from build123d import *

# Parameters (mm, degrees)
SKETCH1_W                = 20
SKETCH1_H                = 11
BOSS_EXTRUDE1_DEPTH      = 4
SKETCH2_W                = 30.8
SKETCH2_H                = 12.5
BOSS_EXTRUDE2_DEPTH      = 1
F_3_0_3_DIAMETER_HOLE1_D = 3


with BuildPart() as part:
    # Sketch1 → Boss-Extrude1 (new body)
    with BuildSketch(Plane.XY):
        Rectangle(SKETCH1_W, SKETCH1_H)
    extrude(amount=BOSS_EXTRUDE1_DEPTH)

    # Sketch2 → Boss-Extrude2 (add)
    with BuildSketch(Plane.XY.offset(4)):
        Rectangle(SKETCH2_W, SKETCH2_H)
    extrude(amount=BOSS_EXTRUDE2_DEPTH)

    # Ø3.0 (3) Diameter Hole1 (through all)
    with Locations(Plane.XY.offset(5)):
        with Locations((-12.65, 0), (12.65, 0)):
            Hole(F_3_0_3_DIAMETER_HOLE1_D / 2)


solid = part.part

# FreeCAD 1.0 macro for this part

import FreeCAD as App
import Part
import Sketcher
from FreeCAD import Vector
Q = App.Units.Quantity

doc = App.newDocument("Part")
body = doc.addObject("PartDesign::Body", "Body")

sketch1 = body.newObject("Sketcher::SketchObject", "Sketch")
sketch1.AttachmentSupport = (doc.getObject("XY_Plane"), [""])
sketch1.MapMode = "FlatFace"
sketch1.addGeometry([
    Part.LineSegment(Vector(-10, 6, 0), Vector(-10, -6, 0)),
    Part.LineSegment(Vector(-10, -6, 0), Vector(10, -6, 0)),
    Part.LineSegment(Vector(10, -6, 0), Vector(10, 6, 0)),
    Part.LineSegment(Vector(10, 6, 0), Vector(-10, 6, 0)),
], False)
sketch1.addConstraint([
    Sketcher.Constraint("Coincident", 0, 2, 1, 1),
    Sketcher.Constraint("Coincident", 1, 2, 2, 1),
    Sketcher.Constraint("Coincident", 2, 2, 3, 1),
    Sketcher.Constraint("Coincident", 3, 2, 0, 1),
    Sketcher.Constraint("Vertical", 0),
    Sketcher.Constraint("Horizontal", 1),
    Sketcher.Constraint("Vertical", 2),
    Sketcher.Constraint("Horizontal", 3),
    Sketcher.Constraint("Symmetric", 0, 2, 2, 2, -1, 1),
    Sketcher.Constraint("DistanceX", 1, 1, 1, 2, Q("20 mm")),
    Sketcher.Constraint("DistanceY", 0, 2, 0, 1, Q("11 mm")),
])
pad1 = body.newObject("PartDesign::Pad", "Pad")
pad1.Profile = sketch1
pad1.Length = 4

sketch2 = body.newObject("Sketcher::SketchObject", "Sketch001")
sketch2.AttachmentSupport = (doc.getObject("XY_Plane"), [""])
sketch2.MapMode = "FlatFace"
sketch2.AttachmentOffset = App.Placement(Vector(0, 0, 4), App.Rotation())
sketch2.addGeometry([
    Part.LineSegment(Vector(-15, 6, 0), Vector(-15, -6, 0)),
    Part.LineSegment(Vector(-15, -6, 0), Vector(15, -6, 0)),
    Part.LineSegment(Vector(15, -6, 0), Vector(15, 6, 0)),
    Part.LineSegment(Vector(15, 6, 0), Vector(-15, 6, 0)),
], False)
sketch2.addConstraint([
    Sketcher.Constraint("Coincident", 0, 2, 1, 1),
    Sketcher.Constraint("Coincident", 1, 2, 2, 1),
    Sketcher.Constraint("Coincident", 2, 2, 3, 1),
    Sketcher.Constraint("Coincident", 3, 2, 0, 1),
    Sketcher.Constraint("Vertical", 0),
    Sketcher.Constraint("Horizontal", 1),
    Sketcher.Constraint("Vertical", 2),
    Sketcher.Constraint("Horizontal", 3),
    Sketcher.Constraint("Symmetric", 0, 2, 2, 2, -1, 1),
    Sketcher.Constraint("DistanceX", 1, 1, 1, 2, Q("30.8 mm")),
    Sketcher.Constraint("DistanceY", 0, 2, 0, 1, Q("12.5 mm")),
])
pad2 = body.newObject("PartDesign::Pad", "Pad001")
pad2.Profile = sketch2
pad2.Length = 1

sketch3 = body.newObject("Sketcher::SketchObject", "Sketch002")
sketch3.AttachmentSupport = (doc.getObject("XY_Plane"), [""])
sketch3.MapMode = "FlatFace"
sketch3.AttachmentOffset = App.Placement(Vector(0, 0, 5), App.Rotation())
sketch3.addGeometry([
    Part.Circle(Vector(-12.7, 0, 0), Vector(0, 0, 1), 1.5),
    Part.Circle(Vector(12.7, 0, 0), Vector(0, 0, 1), 1.5),
], False)
sketch3.addConstraint([
    Sketcher.Constraint("Equal", 0, 1),
    Sketcher.Constraint("Symmetric", 0, 3, 1, 3, -1, 1),
    Sketcher.Constraint("PointOnObject", 0, 3, -1),
    Sketcher.Constraint("Diameter", 0, Q("3 mm")),
    Sketcher.Constraint("DistanceX", 0, 3, 1, 3, Q("25.3 mm")),
])
doc.recompute()
hole = body.newObject("PartDesign::Hole", "Hole")
hole.Profile = sketch3
hole.ThreadType = "None"
hole.Diameter = 3
hole.DepthType = "ThroughAll"

doc.recompute()
